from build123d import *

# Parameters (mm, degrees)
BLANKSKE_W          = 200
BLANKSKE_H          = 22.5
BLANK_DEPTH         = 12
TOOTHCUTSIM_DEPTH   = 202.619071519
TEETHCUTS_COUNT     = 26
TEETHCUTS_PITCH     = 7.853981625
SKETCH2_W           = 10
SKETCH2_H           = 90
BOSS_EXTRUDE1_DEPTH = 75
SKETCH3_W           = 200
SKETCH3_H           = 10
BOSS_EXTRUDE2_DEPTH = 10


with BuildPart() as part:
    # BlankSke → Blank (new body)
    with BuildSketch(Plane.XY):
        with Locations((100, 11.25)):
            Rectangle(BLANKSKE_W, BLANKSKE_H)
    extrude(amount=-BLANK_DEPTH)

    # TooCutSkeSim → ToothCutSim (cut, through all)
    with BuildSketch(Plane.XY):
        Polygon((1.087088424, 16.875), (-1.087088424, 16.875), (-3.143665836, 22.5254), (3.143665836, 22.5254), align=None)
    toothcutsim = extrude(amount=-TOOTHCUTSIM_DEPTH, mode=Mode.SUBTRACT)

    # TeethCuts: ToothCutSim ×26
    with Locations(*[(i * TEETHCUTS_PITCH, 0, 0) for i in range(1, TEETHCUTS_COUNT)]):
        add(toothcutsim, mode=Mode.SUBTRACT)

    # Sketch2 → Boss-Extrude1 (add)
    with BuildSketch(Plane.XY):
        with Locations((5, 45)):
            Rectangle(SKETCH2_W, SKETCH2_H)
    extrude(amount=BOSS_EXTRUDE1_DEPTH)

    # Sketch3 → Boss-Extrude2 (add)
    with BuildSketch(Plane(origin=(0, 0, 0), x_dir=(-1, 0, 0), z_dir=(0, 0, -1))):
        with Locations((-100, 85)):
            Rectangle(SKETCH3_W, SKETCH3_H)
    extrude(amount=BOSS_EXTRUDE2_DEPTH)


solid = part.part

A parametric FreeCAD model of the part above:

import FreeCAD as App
import Part
import Sketcher
from FreeCAD import Vector
Q = App.Units.Quantity

doc = App.newDocument("Part")
body = doc.addObject("PartDesign::Body", "Body")

sketch1 = body.newObject("Sketcher::SketchObject", "Sketch")
sketch1.AttachmentSupport = (doc.getObject("XY_Plane"), [""])
sketch1.MapMode = "FlatFace"
sketch1.addGeometry([
    Part.LineSegment(Vector(0, 22, 0), Vector(0, 0, 0)),
    Part.LineSegment(Vector(0, 0, 0), Vector(200, 0, 0)),
    Part.LineSegment(Vector(200, 0, 0), Vector(200, 22, 0)),
    Part.LineSegment(Vector(200, 22, 0), Vector(0, 22, 0)),
], False)
sketch1.addConstraint([
    Sketcher.Constraint("Coincident", 0, 2, 1, 1),
    Sketcher.Constraint("Coincident", 1, 2, 2, 1),
    Sketcher.Constraint("Coincident", 2, 2, 3, 1),
    Sketcher.Constraint("Coincident", 3, 2, 0, 1),
    Sketcher.Constraint("Vertical", 0),
    Sketcher.Constraint("Horizontal", 1),
    Sketcher.Constraint("Vertical", 2),
    Sketcher.Constraint("Horizontal", 3),
    Sketcher.Constraint("Coincident", 0, 2, -1, 1),
    Sketcher.Constraint("DistanceX", 1, 1, 1, 2, 200.0),
    Sketcher.Constraint("DistanceY", 0, 2, 0, 1, 22.5),
])
pad1 = body.newObject("PartDesign::Pad", "Pad")
pad1.Profile = sketch1
pad1.Length = 12
pad1.Reversed = True

sketch2 = body.newObject("Sketcher::SketchObject", "Sketch001")
sketch2.AttachmentSupport = (doc.getObject("XY_Plane"), [""])
sketch2.MapMode = "FlatFace"
sketch2.addGeometry([
    Part.LineSegment(Vector(-1.1, 16.9, 0), Vector(1.1, 16.9, 0)),
    Part.LineSegment(Vector(1.1, 16.9, 0), Vector(3.1, 22.5, 0)),
    Part.LineSegment(Vector(3.1, 22.5, 0), Vector(-3.1, 22.5, 0)),
    Part.LineSegment(Vector(-3.1, 22.5, 0), Vector(-1.1, 16.9, 0)),
], False)
sketch2.addConstraint([
    Sketcher.Constraint("Coincident", 0, 2, 1, 1),
    Sketcher.Constraint("Coincident", 1, 2, 2, 1),
    Sketcher.Constraint("Coincident", 2, 2, 3, 1),
    Sketcher.Constraint("Coincident", 3, 2, 0, 1),
    Sketcher.Constraint("Horizontal", 0),
    Sketcher.Constraint("Horizontal", 2),
    Sketcher.Constraint("Equal", 1, 3),
    Sketcher.Constraint("Angle", 1, Q("70 deg")),
    Sketcher.Constraint("DistanceY", -1, 1, 0, 2, 16.875),
    Sketcher.Constraint("DistanceX", 2, 2, 2, 1, 6.287332),
    Sketcher.Constraint("DistanceY", -1, 1, 1, 2, 22.5254),
    Sketcher.Constraint("DistanceX", -1, 1, 0, 2, 1.087088),
])
pocket1 = body.newObject("PartDesign::Pocket", "Pocket")
pocket1.Profile = sketch2
pocket1.Type = "ThroughAll"
doc.recompute()

linearpattern = body.newObject("PartDesign::LinearPattern", "LinearPattern")
linearpattern.Originals = [pocket1]
linearpattern.Direction = (doc.getObject("X_Axis"), [""])
linearpattern.Mode = "offset"
linearpattern.Offset = 7.853982
linearpattern.Occurrences = 26
body.Tip = linearpattern

sketch3 = body.newObject("Sketcher::SketchObject", "Sketch002")
sketch3.AttachmentSupport = (doc.getObject("XY_Plane"), [""])
sketch3.MapMode = "FlatFace"
sketch3.addGeometry([
    Part.LineSegment(Vector(0, 90, 0), Vector(0, 0, 0)),
    Part.LineSegment(Vector(0, 0, 0), Vector(10, 0, 0)),
    Part.LineSegment(Vector(10, 0, 0), Vector(10, 90, 0)),
    Part.LineSegment(Vector(10, 90, 0), Vector(0, 90, 0)),
], False)
sketch3.addConstraint([
    Sketcher.Constraint("Coincident", 0, 2, 1, 1),
    Sketcher.Constraint("Coincident", 1, 2, 2, 1),
    Sketcher.Constraint("Coincident", 2, 2, 3, 1),
    Sketcher.Constraint("Coincident", 3, 2, 0, 1),
    Sketcher.Constraint("Vertical", 0),
    Sketcher.Constraint("Horizontal", 1),
    Sketcher.Constraint("Vertical", 2),
    Sketcher.Constraint("Horizontal", 3),
    Sketcher.Constraint("Coincident", 0, 2, -1, 1),
    Sketcher.Constraint("DistanceX", 1, 1, 1, 2, 10.0),
    Sketcher.Constraint("DistanceY", 0, 2, 0, 1, 90.0),
])
pad2 = body.newObject("PartDesign::Pad", "Pad001")
pad2.Profile = sketch3
pad2.Length = 75

sketch4 = body.newObject("Sketcher::SketchObject", "Sketch003")
sketch4.AttachmentSupport = (doc.getObject("XY_Plane"), [""])
sketch4.MapMode = "FlatFace"
sketch4.addGeometry([
    Part.LineSegment(Vector(200, 90, 0), Vector(200, 80, 0)),
    Part.LineSegment(Vector(200, 80, 0), Vector(0, 80, 0)),
    Part.LineSegment(Vector(0, 80, 0), Vector(0, 90, 0)),
    Part.LineSegment(Vector(0, 90, 0), Vector(200, 90, 0)),
], False)
sketch4.addConstraint([
    Sketcher.Constraint("Coincident", 0, 2, 1, 1),
    Sketcher.Constraint("Coincident", 1, 2, 2, 1),
    Sketcher.Constraint("Coincident", 2, 2, 3, 1),
    Sketcher.Constraint("Coincident", 3, 2, 0, 1),
    Sketcher.Constraint("Vertical", 0),
    Sketcher.Constraint("Horizontal", 1),
    Sketcher.Constraint("Vertical", 2),
    Sketcher.Constraint("Horizontal", 3),
    Sketcher.Constraint("PointOnObject", 1, 2, -2),
    Sketcher.Constraint("DistanceX", 1, 2, 1, 1, 200.0),
    Sketcher.Constraint("DistanceY", 0, 2, 0, 1, 10.0),
    Sketcher.Constraint("DistanceY", -1, 1, 0, 2, 80.0),
])
pad3 = body.newObject("PartDesign::Pad", "Pad002")
pad3.Profile = sketch4
pad3.Length = 10
pad3.Reversed = True

doc.recompute()
